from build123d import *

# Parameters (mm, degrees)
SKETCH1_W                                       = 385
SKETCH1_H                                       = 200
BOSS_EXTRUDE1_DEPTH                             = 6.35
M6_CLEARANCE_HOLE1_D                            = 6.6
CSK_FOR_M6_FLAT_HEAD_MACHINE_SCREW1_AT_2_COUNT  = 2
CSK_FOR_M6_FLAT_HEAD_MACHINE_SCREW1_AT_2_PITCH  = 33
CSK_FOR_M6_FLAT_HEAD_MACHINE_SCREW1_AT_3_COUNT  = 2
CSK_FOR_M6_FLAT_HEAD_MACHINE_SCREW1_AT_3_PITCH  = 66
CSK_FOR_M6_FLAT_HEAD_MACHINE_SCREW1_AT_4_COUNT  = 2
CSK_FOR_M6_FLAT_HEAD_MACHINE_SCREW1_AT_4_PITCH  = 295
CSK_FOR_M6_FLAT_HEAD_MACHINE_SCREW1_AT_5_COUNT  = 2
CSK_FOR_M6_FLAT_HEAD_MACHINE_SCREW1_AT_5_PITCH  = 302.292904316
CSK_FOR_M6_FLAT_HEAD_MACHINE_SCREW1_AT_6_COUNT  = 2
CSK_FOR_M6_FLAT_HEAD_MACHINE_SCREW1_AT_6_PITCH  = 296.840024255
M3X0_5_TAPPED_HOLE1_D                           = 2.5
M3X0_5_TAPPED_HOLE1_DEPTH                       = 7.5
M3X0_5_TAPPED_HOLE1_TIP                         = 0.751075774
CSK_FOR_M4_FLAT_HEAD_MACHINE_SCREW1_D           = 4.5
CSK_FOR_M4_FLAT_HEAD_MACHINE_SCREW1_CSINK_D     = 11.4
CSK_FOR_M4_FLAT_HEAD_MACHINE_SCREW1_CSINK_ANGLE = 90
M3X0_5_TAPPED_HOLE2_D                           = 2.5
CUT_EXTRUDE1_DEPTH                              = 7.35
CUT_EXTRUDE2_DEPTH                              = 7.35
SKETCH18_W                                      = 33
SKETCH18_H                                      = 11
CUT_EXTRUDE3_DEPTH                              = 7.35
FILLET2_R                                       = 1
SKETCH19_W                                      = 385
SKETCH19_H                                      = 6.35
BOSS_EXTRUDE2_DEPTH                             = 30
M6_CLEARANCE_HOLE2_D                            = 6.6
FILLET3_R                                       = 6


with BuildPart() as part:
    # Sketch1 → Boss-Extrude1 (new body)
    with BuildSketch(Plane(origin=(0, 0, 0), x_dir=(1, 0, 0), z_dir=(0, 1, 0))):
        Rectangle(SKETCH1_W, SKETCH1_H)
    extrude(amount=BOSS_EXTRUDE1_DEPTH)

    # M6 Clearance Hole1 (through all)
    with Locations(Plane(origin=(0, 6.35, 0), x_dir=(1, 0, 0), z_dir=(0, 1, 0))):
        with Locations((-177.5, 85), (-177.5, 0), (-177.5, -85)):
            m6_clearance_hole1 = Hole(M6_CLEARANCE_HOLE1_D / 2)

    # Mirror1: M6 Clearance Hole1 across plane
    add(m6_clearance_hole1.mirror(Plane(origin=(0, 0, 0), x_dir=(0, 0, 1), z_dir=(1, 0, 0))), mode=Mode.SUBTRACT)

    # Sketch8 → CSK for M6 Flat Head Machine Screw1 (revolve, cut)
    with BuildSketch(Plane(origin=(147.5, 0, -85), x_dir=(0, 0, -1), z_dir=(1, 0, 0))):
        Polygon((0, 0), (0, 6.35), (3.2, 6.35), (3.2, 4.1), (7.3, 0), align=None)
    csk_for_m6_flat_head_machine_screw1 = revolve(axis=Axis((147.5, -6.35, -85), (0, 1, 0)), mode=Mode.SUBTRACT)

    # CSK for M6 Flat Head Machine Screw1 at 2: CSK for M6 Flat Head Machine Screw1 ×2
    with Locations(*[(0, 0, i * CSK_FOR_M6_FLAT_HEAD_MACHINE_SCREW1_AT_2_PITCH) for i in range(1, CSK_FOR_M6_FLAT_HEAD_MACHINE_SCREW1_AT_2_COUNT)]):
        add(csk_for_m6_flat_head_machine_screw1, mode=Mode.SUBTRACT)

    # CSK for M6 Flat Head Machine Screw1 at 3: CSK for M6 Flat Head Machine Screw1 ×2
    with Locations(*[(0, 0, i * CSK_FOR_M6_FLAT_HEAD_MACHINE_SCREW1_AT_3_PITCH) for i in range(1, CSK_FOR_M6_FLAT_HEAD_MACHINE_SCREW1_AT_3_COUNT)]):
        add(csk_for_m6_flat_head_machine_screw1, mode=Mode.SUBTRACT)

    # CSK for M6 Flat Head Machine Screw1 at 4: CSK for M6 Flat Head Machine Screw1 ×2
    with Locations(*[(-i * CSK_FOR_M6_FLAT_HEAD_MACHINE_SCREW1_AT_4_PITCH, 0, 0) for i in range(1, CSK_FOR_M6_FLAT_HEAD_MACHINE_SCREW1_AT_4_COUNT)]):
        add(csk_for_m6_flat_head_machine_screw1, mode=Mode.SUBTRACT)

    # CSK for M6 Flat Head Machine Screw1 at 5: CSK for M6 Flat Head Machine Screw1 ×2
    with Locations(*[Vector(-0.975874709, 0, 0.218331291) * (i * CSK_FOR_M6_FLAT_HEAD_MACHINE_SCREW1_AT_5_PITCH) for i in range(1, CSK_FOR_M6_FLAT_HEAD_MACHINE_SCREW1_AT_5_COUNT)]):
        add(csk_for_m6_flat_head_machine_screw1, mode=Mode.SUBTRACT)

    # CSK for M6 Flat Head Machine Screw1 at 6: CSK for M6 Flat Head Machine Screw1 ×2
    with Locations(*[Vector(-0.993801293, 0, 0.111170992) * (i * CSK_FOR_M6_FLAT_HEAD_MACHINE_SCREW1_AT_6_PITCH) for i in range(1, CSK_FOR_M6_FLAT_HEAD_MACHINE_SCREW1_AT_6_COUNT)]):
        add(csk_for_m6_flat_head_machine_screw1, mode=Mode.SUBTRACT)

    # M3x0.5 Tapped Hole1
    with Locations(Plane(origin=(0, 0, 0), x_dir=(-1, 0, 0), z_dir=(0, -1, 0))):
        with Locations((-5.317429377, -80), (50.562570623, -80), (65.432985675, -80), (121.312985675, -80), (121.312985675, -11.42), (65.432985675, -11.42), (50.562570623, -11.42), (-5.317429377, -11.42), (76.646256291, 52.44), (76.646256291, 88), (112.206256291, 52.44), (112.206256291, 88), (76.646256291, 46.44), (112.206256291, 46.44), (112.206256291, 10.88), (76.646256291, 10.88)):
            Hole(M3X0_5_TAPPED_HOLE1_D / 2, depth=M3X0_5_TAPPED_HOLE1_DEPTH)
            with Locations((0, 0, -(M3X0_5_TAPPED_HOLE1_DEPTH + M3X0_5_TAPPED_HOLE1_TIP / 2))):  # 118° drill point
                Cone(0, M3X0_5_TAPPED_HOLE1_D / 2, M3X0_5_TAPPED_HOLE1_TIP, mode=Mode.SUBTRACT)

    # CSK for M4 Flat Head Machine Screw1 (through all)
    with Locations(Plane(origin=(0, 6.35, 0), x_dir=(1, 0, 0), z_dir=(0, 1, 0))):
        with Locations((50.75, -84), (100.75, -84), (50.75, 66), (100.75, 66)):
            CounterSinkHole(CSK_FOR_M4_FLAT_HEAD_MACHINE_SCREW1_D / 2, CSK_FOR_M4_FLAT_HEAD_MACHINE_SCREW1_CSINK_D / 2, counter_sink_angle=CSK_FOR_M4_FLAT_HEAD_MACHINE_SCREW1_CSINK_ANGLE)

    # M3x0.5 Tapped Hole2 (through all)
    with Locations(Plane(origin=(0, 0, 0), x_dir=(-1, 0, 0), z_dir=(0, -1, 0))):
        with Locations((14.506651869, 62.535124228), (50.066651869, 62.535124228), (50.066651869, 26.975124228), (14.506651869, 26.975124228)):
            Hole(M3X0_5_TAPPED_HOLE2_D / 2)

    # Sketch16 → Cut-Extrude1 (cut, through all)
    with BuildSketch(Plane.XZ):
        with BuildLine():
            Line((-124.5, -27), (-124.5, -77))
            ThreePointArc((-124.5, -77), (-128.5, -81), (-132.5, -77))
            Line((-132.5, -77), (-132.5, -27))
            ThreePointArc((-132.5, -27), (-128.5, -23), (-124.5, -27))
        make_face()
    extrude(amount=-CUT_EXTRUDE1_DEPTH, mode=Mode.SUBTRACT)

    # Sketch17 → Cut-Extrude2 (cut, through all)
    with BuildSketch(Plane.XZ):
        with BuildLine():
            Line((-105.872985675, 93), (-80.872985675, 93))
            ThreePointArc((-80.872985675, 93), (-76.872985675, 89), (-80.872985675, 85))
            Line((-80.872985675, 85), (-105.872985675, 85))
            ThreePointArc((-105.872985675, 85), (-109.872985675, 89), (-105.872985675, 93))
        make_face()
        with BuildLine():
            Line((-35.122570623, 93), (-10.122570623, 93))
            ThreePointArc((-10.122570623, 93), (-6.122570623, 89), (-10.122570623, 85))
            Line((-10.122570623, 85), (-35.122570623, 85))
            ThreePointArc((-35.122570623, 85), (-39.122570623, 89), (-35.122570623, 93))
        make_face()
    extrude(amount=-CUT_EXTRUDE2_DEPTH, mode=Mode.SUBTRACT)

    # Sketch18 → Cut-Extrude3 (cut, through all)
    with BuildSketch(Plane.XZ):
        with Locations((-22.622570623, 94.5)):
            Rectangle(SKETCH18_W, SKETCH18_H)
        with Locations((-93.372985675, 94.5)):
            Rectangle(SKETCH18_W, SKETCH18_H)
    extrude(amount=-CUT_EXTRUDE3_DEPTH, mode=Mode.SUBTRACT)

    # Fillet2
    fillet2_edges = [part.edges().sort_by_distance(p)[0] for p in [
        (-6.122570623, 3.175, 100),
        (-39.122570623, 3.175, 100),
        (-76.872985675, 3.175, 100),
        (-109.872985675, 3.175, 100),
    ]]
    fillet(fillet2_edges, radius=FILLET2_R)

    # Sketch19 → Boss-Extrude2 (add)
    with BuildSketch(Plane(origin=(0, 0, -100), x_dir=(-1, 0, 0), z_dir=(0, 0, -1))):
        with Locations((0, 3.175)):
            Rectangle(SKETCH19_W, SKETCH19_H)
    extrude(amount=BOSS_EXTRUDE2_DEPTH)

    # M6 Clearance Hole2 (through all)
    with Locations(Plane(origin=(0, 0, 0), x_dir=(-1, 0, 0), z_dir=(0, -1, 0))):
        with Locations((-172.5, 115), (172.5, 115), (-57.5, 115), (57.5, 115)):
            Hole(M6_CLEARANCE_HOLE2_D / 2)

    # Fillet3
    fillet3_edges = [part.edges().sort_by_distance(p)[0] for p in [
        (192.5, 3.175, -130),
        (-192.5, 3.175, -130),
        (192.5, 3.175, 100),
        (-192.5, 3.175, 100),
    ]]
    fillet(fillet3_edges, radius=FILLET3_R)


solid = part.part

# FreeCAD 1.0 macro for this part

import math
import FreeCAD as App
import Part
import Sketcher
from FreeCAD import Vector
Q = App.Units.Quantity


def edges_at(feature, points):
    """Names of the edges that pass closest to the given points."""
    edges = feature.Shape.Edges
    near = lambda p: min(range(len(edges)), key=lambda i: edges[i].distToShape(Part.Vertex(*p))[0])
    return sorted({f"Edge{near(p) + 1}" for p in points})


def add_polygon(sketch, points):
    """Adds a closed chain of lines whose ends are joined by coincident constraints."""
    first, n = sketch.GeometryCount, len(points)
    for a, b in zip(points, points[1:] + points[:1]):
        sketch.addGeometry(Part.LineSegment(App.Vector(*a, 0), App.Vector(*b, 0)), False)
    for i in range(n):
        sketch.addConstraint(Sketcher.Constraint("Coincident", first + i, 2, first + (i + 1) % n, 1))

doc = App.newDocument("Part")
params = doc.addObject("Spreadsheet::Sheet", "Params")
for row, (alias, value) in enumerate([
    ("sketch1_width", "385 mm"),
    ("sketch1_height", "200 mm"),
    ("pad1_length", "6.35 mm"),
    ("sketch2_diameter", "6.6 mm"),
    ("hole_diameter", "6.6 mm"),
    ("sketch3_height", "7.3 mm"),
    ("sketch3_height2", "3.2 mm"),
    ("sketch3_width", "6.35 mm"),
    ("groove_angle", "360 deg"),
    ("linearpattern_pitch", "33 mm"),
    ("linearpattern2_pitch", "66 mm"),
    ("linearpattern3_pitch", "295 mm"),
    ("linearpattern4_pitch", "302.292904 mm"),
    ("linearpattern5_pitch", "296.840024 mm"),
    ("sketch4_diameter", "2.5 mm"),
    ("hole2_diameter", "2.5 mm"),
    ("hole2_depth", "7.5 mm"),
    ("sketch5_diameter", "4.5 mm"),
    ("hole3_diameter", "4.5 mm"),
    ("hole3_csink_diameter", "11.4 mm"),
    ("sketch6_diameter", "2.5 mm"),
    ("hole4_diameter", "2.5 mm"),
    ("sketch7_radius", "4 mm"),
    ("sketch7_height", "50 mm"),
    ("sketch8_radius", "4 mm"),
    ("sketch8_width", "25 mm"),
    ("sketch9_width", "33 mm"),
    ("sketch9_height", "11 mm"),
    ("fillet_radius", "1 mm"),
    ("sketch10_width", "385 mm"),
    ("sketch10_height", "6.35 mm"),
    ("pad2_length", "30 mm"),
    ("sketch11_diameter", "6.6 mm"),
    ("hole5_diameter", "6.6 mm"),
    ("fillet2_radius", "6 mm"),
], start=1):
    params.set(f"A{row}", alias)
    params.set(f"B{row}", "=" + value)
    params.setAlias(f"B{row}", alias)

body = doc.addObject("PartDesign::Body", "Body")

sketch1 = body.newObject("Sketcher::SketchObject", "Sketch")
sketch1.AttachmentSupport = (doc.getObject("XZ_Plane"), [""])
sketch1.MapMode = "FlatFace"
add_polygon(sketch1, [(-192.5, -100), (-192.5, 100), (192.5, 100), (192.5, -100)])
sketch1.addConstraint([
    Sketcher.Constraint("Vertical", 0),
    Sketcher.Constraint("Horizontal", 1),
    Sketcher.Constraint("Vertical", 2),
    Sketcher.Constraint("Horizontal", 3),
    Sketcher.Constraint("Symmetric", 0, 2, 2, 2, -1, 1),
    Sketcher.Constraint("DistanceX", 1, 1, 1, 2, 385.0),
    Sketcher.Constraint("DistanceY", 0, 1, 0, 2, 200.0),
])
sketch1.setExpression("Constraints[9]", "Params.sketch1_width")
sketch1.setExpression("Constraints[10]", "Params.sketch1_height")
pad1 = body.newObject("PartDesign::Pad", "Pad")
pad1.Profile = sketch1
pad1.setExpression("Length", "Params.pad1_length")
pad1.Reversed = True

sketch2 = body.newObject("Sketcher::SketchObject", "Sketch001")
sketch2.AttachmentSupport = (doc.getObject("XZ_Plane"), [""])
sketch2.MapMode = "FlatFace"
sketch2.AttachmentOffset = App.Placement(Vector(0, 0, -6.35), App.Rotation())
sketch2.addGeometry([
    Part.Circle(Vector(-177.5, -85, 0), Vector(0, 0, 1), 3.3),
    Part.Circle(Vector(-177.5, 0, 0), Vector(0, 0, 1), 3.3),
    Part.Circle(Vector(-177.5, 85, 0), Vector(0, 0, 1), 3.3),
], False)
sketch2.addConstraint([
    Sketcher.Constraint("Equal", 0, 1),
    Sketcher.Constraint("Equal", 1, 2),
    Sketcher.Constraint("Symmetric", 0, 3, 2, 3, -1),
    Sketcher.Constraint("PointOnObject", 1, 3, -1),
    Sketcher.Constraint("Vertical", 0, 3, 1, 3),
    Sketcher.Constraint("Diameter", 0, 6.6),
    Sketcher.Constraint("DistanceY", 0, 3, -1, 1, 85.0),
    Sketcher.Constraint("DistanceX", 0, 3, -1, 1, 177.5),
])
sketch2.setExpression("Constraints[5]", "Params.sketch2_diameter")
doc.recompute()
hole = body.newObject("PartDesign::Hole", "Hole")
hole.Profile = sketch2
hole.ThreadType = "None"
hole.setExpression("Diameter", "Params.hole_diameter")
hole.DepthType = "ThroughAll"
hole.Reversed = True
doc.recompute()

mirrored = body.newObject("PartDesign::Mirrored", "Mirrored")
mirrored.Originals = [hole]
mirrored.MirrorPlane = (doc.getObject("YZ_Plane"), [""])
body.Tip = mirrored

sketch3 = body.newObject("Sketcher::SketchObject", "Sketch002")
sketch3.AttachmentSupport = (doc.getObject("YZ_Plane"), [""])
sketch3.MapMode = "FlatFace"
sketch3.AttachmentOffset = App.Placement(Vector(0, 0, 147.5), App.Rotation())
add_polygon(sketch3, [(6.35, -85), (0, -85), (0, -92.3), (4.1, -88.2), (6.35, -88.2)])
sketch3.addGeometry(Part.LineSegment(Vector(0, -85, 0), Vector(6.35, -85, 0)), True)
sketch3.addConstraint([
    Sketcher.Constraint("Horizontal", 0),
    Sketcher.Constraint("Vertical", 1),
    Sketcher.Constraint("Horizontal", 3),
    Sketcher.Constraint("Vertical", 4),
    Sketcher.Constraint("Horizontal", 5),
    Sketcher.Constraint("Coincident", 5, 1, 0, 2),
    Sketcher.Constraint("PointOnObject", 0, 2, -2),
    Sketcher.Constraint("Vertical", 3, 2, 5, 2),
    Sketcher.Constraint("Angle", 2, Q("45 deg")),
    Sketcher.Constraint("DistanceY", 1, 2, 1, 1, 7.3),
    Sketcher.Constraint("DistanceY", 4, 1, 4, 2, 3.2),
    Sketcher.Constraint("DistanceY", 0, 2, -1, 1, 85.0),
    Sketcher.Constraint("DistanceX", 0, 2, 0, 1, 6.35),
])
sketch3.setExpression("Constraints[14]", "Params.sketch3_height")
sketch3.setExpression("Constraints[15]", "Params.sketch3_height2")
sketch3.setExpression("Constraints[17]", "Params.sketch3_width")
groove = body.newObject("PartDesign::Groove", "Groove")
groove.Profile = sketch3
groove.ReferenceAxis = (sketch3, ["Axis0"])
groove.setExpression("Angle", "Params.groove_angle")
doc.recompute()

linearpattern = body.newObject("PartDesign::LinearPattern", "LinearPattern")
linearpattern.Originals = [groove]
linearpattern.Direction = (doc.getObject("Z_Axis"), [""])
linearpattern.Mode = "offset"
linearpattern.setExpression("Offset", "Params.linearpattern_pitch")
linearpattern.Occurrences = 2
body.Tip = linearpattern
doc.recompute()

linearpattern2 = body.newObject("PartDesign::LinearPattern", "LinearPattern001")
linearpattern2.Originals = [groove]
linearpattern2.Direction = (doc.getObject("Z_Axis"), [""])
linearpattern2.Mode = "offset"
linearpattern2.setExpression("Offset", "Params.linearpattern2_pitch")
linearpattern2.Occurrences = 2
body.Tip = linearpattern2
doc.recompute()

linearpattern3 = body.newObject("PartDesign::LinearPattern", "LinearPattern002")
linearpattern3.Originals = [groove]
linearpattern3.Direction = (doc.getObject("X_Axis"), [""])
linearpattern3.Mode = "offset"
linearpattern3.setExpression("Offset", "Params.linearpattern3_pitch")
linearpattern3.Occurrences = 2
linearpattern3.Reversed = True
body.Tip = linearpattern3
doc.recompute()

datumline = body.newObject("PartDesign::Line", "DatumLine")
datumline.Placement = App.Placement(Vector(0, 0, 0), App.Rotation(Vector(0, 0, 1), Vector(-0.975874709, 0, 0.218331291)))
linearpattern4 = body.newObject("PartDesign::LinearPattern", "LinearPattern003")
linearpattern4.Originals = [groove]
linearpattern4.Direction = (datumline, [""])
linearpattern4.Mode = "offset"
linearpattern4.setExpression("Offset", "Params.linearpattern4_pitch")
linearpattern4.Occurrences = 2
body.Tip = linearpattern4
doc.recompute()

datumline2 = body.newObject("PartDesign::Line", "DatumLine001")
datumline2.Placement = App.Placement(Vector(0, 0, 0), App.Rotation(Vector(0, 0, 1), Vector(-0.993801293, 0, 0.111170992)))
linearpattern5 = body.newObject("PartDesign::LinearPattern", "LinearPattern004")
linearpattern5.Originals = [groove]
linearpattern5.Direction = (datumline2, [""])
linearpattern5.Mode = "offset"
linearpattern5.setExpression("Offset", "Params.linearpattern5_pitch")
linearpattern5.Occurrences = 2
body.Tip = linearpattern5

sketch4 = body.newObject("Sketcher::SketchObject", "Sketch003")
sketch4.AttachmentSupport = (doc.getObject("XZ_Plane"), [""])
sketch4.MapMode = "FlatFace"
sketch4.addGeometry([
    Part.Circle(Vector(5.317429, 80, 0), Vector(0, 0, 1), 1.25),
    Part.Circle(Vector(-50.562571, 80, 0), Vector(0, 0, 1), 1.25),
    Part.Circle(Vector(-65.432986, 80, 0), Vector(0, 0, 1), 1.25),
    Part.Circle(Vector(-121.312986, 80, 0), Vector(0, 0, 1), 1.25),
    Part.Circle(Vector(-121.312986, 11.42, 0), Vector(0, 0, 1), 1.25),
    Part.Circle(Vector(-65.432986, 11.42, 0), Vector(0, 0, 1), 1.25),
    Part.Circle(Vector(-50.562571, 11.42, 0), Vector(0, 0, 1), 1.25),
    Part.Circle(Vector(5.317429, 11.42, 0), Vector(0, 0, 1), 1.25),
    Part.Circle(Vector(-76.646256, -52.44, 0), Vector(0, 0, 1), 1.25),
    Part.Circle(Vector(-76.646256, -88, 0), Vector(0, 0, 1), 1.25),
    Part.Circle(Vector(-112.206256, -52.44, 0), Vector(0, 0, 1), 1.25),
    Part.Circle(Vector(-112.206256, -88, 0), Vector(0, 0, 1), 1.25),
    Part.Circle(Vector(-76.646256, -46.44, 0), Vector(0, 0, 1), 1.25),
    Part.Circle(Vector(-112.206256, -46.44, 0), Vector(0, 0, 1), 1.25),
    Part.Circle(Vector(-112.206256, -10.88, 0), Vector(0, 0, 1), 1.25),
    Part.Circle(Vector(-76.646256, -10.88, 0), Vector(0, 0, 1), 1.25),
], False)
sketch4.addConstraint([
    Sketcher.Constraint("Equal", 0, 1),
    Sketcher.Constraint("Equal", 1, 2),
    Sketcher.Constraint("Equal", 2, 3),
    Sketcher.Constraint("Equal", 3, 4),
    Sketcher.Constraint("Equal", 4, 5),
    Sketcher.Constraint("Equal", 5, 6),
    Sketcher.Constraint("Equal", 6, 7),
    Sketcher.Constraint("Equal", 7, 8),
    Sketcher.Constraint("Equal", 8, 9),
    Sketcher.Constraint("Equal", 9, 10),
    Sketcher.Constraint("Equal", 10, 11),
    Sketcher.Constraint("Equal", 11, 12),
    Sketcher.Constraint("Equal", 12, 13),
    Sketcher.Constraint("Equal", 13, 14),
    Sketcher.Constraint("Equal", 14, 15),
    Sketcher.Constraint("Horizontal", 0, 3, 1, 3),
    Sketcher.Constraint("Horizontal", 1, 3, 2, 3),
    Sketcher.Constraint("Horizontal", 2, 3, 3, 3),
    Sketcher.Constraint("Horizontal", 4, 3, 5, 3),
    Sketcher.Constraint("Horizontal", 5, 3, 6, 3),
    Sketcher.Constraint("Horizontal", 6, 3, 7, 3),
    Sketcher.Constraint("Horizontal", 8, 3, 10, 3),
    Sketcher.Constraint("Horizontal", 9, 3, 11, 3),
    Sketcher.Constraint("Horizontal", 12, 3, 13, 3),
    Sketcher.Constraint("Horizontal", 14, 3, 15, 3),
    Sketcher.Constraint("Vertical", 3, 3, 4, 3),
    Sketcher.Constraint("Vertical", 2, 3, 5, 3),
    Sketcher.Constraint("Vertical", 1, 3, 6, 3),
    Sketcher.Constraint("Vertical", 0, 3, 7, 3),
    Sketcher.Constraint("Vertical", 8, 3, 9, 3),
    Sketcher.Constraint("Vertical", 10, 3, 11, 3),
    Sketcher.Constraint("Vertical", 9, 3, 12, 3),
    Sketcher.Constraint("Vertical", 11, 3, 13, 3),
    Sketcher.Constraint("Vertical", 13, 3, 14, 3),
    Sketcher.Constraint("Vertical", 12, 3, 15, 3),
    Sketcher.Constraint("Diameter", 0, 2.5),
    Sketcher.Constraint("DistanceY", -1, 1, 0, 3, 80.0),
    Sketcher.Constraint("DistanceY", 9, 3, -1, 1, 88.0),
    Sketcher.Constraint("DistanceY", 8, 3, 12, 3, 6.0),
    Sketcher.Constraint("DistanceY", 14, 3, 4, 3, 22.3),
    Sketcher.Constraint("DistanceY", -1, 1, 4, 3, 11.42),
    Sketcher.Constraint("DistanceY", 8, 3, -1, 1, 52.44),
    Sketcher.Constraint("DistanceX", 1, 3, 0, 3, 55.88),
    Sketcher.Constraint("DistanceX", 3, 3, 2, 3, 55.88),
    Sketcher.Constraint("DistanceX", 10, 3, 8, 3, 35.56),
    Sketcher.Constraint("DistanceX", -1, 1, 0, 3, 5.317429),
    Sketcher.Constraint("DistanceX", 8, 3, 5, 3, 11.213271),
    Sketcher.Constraint("DistanceX", 2, 3, -1, 1, 65.432986),
])
sketch4.setExpression("Constraints[35]", "Params.sketch4_diameter")
doc.recompute()
hole2 = body.newObject("PartDesign::Hole", "Hole001")
hole2.Profile = sketch4
hole2.ThreadType = "None"
hole2.setExpression("Diameter", "Params.hole2_diameter")
hole2.DepthType = "Dimension"
hole2.setExpression("Depth", "Params.hole2_depth")
hole2.DrillPoint = "Angled"
hole2.DrillPointAngle = 118

sketch5 = body.newObject("Sketcher::SketchObject", "Sketch004")
sketch5.AttachmentSupport = (doc.getObject("XZ_Plane"), [""])
sketch5.MapMode = "FlatFace"
sketch5.AttachmentOffset = App.Placement(Vector(0, 0, -6.35), App.Rotation())
sketch5.addGeometry([
    Part.Circle(Vector(50.75, 84, 0), Vector(0, 0, 1), 2.25),
    Part.Circle(Vector(100.75, 84, 0), Vector(0, 0, 1), 2.25),
    Part.Circle(Vector(50.75, -66, 0), Vector(0, 0, 1), 2.25),
    Part.Circle(Vector(100.75, -66, 0), Vector(0, 0, 1), 2.25),
], False)
sketch5.addConstraint([
    Sketcher.Constraint("Equal", 0, 1),
    Sketcher.Constraint("Equal", 1, 2),
    Sketcher.Constraint("Equal", 2, 3),
    Sketcher.Constraint("Horizontal", 0, 3, 1, 3),
    Sketcher.Constraint("Horizontal", 2, 3, 3, 3),
    Sketcher.Constraint("Vertical", 0, 3, 2, 3),
    Sketcher.Constraint("Vertical", 1, 3, 3, 3),
    Sketcher.Constraint("Diameter", 0, 4.5),
    Sketcher.Constraint("DistanceY", -1, 1, 0, 3, 84.0),
    Sketcher.Constraint("DistanceY", 2, 3, -1, 1, 66.0),
    Sketcher.Constraint("DistanceX", 0, 3, 1, 3, 50.0),
    Sketcher.Constraint("DistanceX", -1, 1, 0, 3, 50.75),
])
sketch5.setExpression("Constraints[7]", "Params.sketch5_diameter")
doc.recompute()
hole3 = body.newObject("PartDesign::Hole", "Hole002")
hole3.Profile = sketch5
hole3.ThreadType = "None"
hole3.setExpression("Diameter", "Params.hole3_diameter")
hole3.DepthType = "ThroughAll"
hole3.HoleCutType = "Countersink"
hole3.setExpression("HoleCutDiameter", "Params.hole3_csink_diameter")
hole3.HoleCutCountersinkAngle = 90
hole3.Reversed = True

sketch6 = body.newObject("Sketcher::SketchObject", "Sketch005")
sketch6.AttachmentSupport = (doc.getObject("XZ_Plane"), [""])
sketch6.MapMode = "FlatFace"
sketch6.addGeometry([
    Part.Circle(Vector(-14.506652, -62.535124, 0), Vector(0, 0, 1), 1.25),
    Part.Circle(Vector(-50.066652, -62.535124, 0), Vector(0, 0, 1), 1.25),
    Part.Circle(Vector(-50.066652, -26.975124, 0), Vector(0, 0, 1), 1.25),
    Part.Circle(Vector(-14.506652, -26.975124, 0), Vector(0, 0, 1), 1.25),
], False)
sketch6.addConstraint([
    Sketcher.Constraint("Equal", 0, 1),
    Sketcher.Constraint("Equal", 1, 2),
    Sketcher.Constraint("Equal", 2, 3),
    Sketcher.Constraint("Horizontal", 0, 3, 1, 3),
    Sketcher.Constraint("Horizontal", 2, 3, 3, 3),
    Sketcher.Constraint("Vertical", 1, 3, 2, 3),
    Sketcher.Constraint("Vertical", 0, 3, 3, 3),
    Sketcher.Constraint("Diameter", 0, 2.5),
    Sketcher.Constraint("DistanceX", 1, 3, 0, 3, 35.56),
    Sketcher.Constraint("DistanceY", 1, 3, 2, 3, 35.56),
    Sketcher.Constraint("DistanceX", 0, 3, -1, 1, 14.506652),
    Sketcher.Constraint("DistanceY", 0, 3, -1, 1, 62.535124),
])
sketch6.setExpression("Constraints[7]", "Params.sketch6_diameter")
doc.recompute()
hole4 = body.newObject("PartDesign::Hole", "Hole003")
hole4.Profile = sketch6
hole4.ThreadType = "None"
hole4.setExpression("Diameter", "Params.hole4_diameter")
hole4.DepthType = "ThroughAll"

sketch7 = body.newObject("Sketcher::SketchObject", "Sketch006")
sketch7.AttachmentSupport = (doc.getObject("XZ_Plane"), [""])
sketch7.MapMode = "FlatFace"
sketch7.addGeometry([
    Part.LineSegment(Vector(-124.5, -77, 0), Vector(-124.5, -27, 0)),
    Part.ArcOfCircle(Part.Circle(Vector(-128.5, -27, 0), Vector(0, 0, 1), 4), math.radians(0), math.radians(180)),
    Part.LineSegment(Vector(-132.5, -27, 0), Vector(-132.5, -77, 0)),
    Part.ArcOfCircle(Part.Circle(Vector(-128.5, -77, 0), Vector(0, 0, 1), 4), math.radians(180), math.radians(360)),
], False)
sketch7.addConstraint([
    Sketcher.Constraint("Tangent", 0, 2, 1, 1),
    Sketcher.Constraint("Tangent", 1, 2, 2, 1),
    Sketcher.Constraint("Tangent", 2, 2, 3, 1),
    Sketcher.Constraint("Tangent", 3, 2, 0, 1),
    Sketcher.Constraint("Vertical", 0),
    Sketcher.Constraint("Vertical", 2),
    Sketcher.Constraint("Radius", 1, 4.0),
    Sketcher.Constraint("DistanceY", 0, 1, 0, 2, 50.0),
    Sketcher.Constraint("DistanceY", 1, 3, -1, 1, 27.0),
    Sketcher.Constraint("DistanceX", 1, 3, -1, 1, 128.5),
])
sketch7.setExpression("Constraints[6]", "Params.sketch7_radius")
sketch7.setExpression("Constraints[7]", "Params.sketch7_height")
pocket1 = body.newObject("PartDesign::Pocket", "Pocket")
pocket1.Profile = sketch7
pocket1.Type = "ThroughAll"

sketch8 = body.newObject("Sketcher::SketchObject", "Sketch007")
sketch8.AttachmentSupport = (doc.getObject("XZ_Plane"), [""])
sketch8.MapMode = "FlatFace"
sketch8.addGeometry([
    Part.LineSegment(Vector(-80.872986, 93, 0), Vector(-105.872986, 93, 0)),
    Part.ArcOfCircle(Part.Circle(Vector(-105.872986, 89, 0), Vector(0, 0, 1), 4), math.radians(90), math.radians(270)),
    Part.LineSegment(Vector(-105.872986, 85, 0), Vector(-80.872986, 85, 0)),
    Part.ArcOfCircle(Part.Circle(Vector(-80.872986, 89, 0), Vector(0, 0, 1), 4), math.radians(-90), math.radians(90)),
    Part.LineSegment(Vector(-10.122571, 93, 0), Vector(-35.122571, 93, 0)),
    Part.ArcOfCircle(Part.Circle(Vector(-35.122571, 89, 0), Vector(0, 0, 1), 4), math.radians(90), math.radians(270)),
    Part.LineSegment(Vector(-35.122571, 85, 0), Vector(-10.122571, 85, 0)),
    Part.ArcOfCircle(Part.Circle(Vector(-10.122571, 89, 0), Vector(0, 0, 1), 4), math.radians(-90), math.radians(90)),
], False)
sketch8.addConstraint([
    Sketcher.Constraint("Tangent", 0, 2, 1, 1),
    Sketcher.Constraint("Tangent", 1, 2, 2, 1),
    Sketcher.Constraint("Tangent", 2, 2, 3, 1),
    Sketcher.Constraint("Tangent", 3, 2, 0, 1),
    Sketcher.Constraint("Tangent", 4, 2, 5, 1),
    Sketcher.Constraint("Tangent", 5, 2, 6, 1),
    Sketcher.Constraint("Tangent", 6, 2, 7, 1),
    Sketcher.Constraint("Tangent", 7, 2, 4, 1),
    Sketcher.Constraint("Horizontal", 0),
    Sketcher.Constraint("Horizontal", 2),
    Sketcher.Constraint("Horizontal", 4),
    Sketcher.Constraint("Horizontal", 6),
    Sketcher.Constraint("Equal", 3, 5),
    Sketcher.Constraint("Horizontal", 3, 3, 5, 3),
    Sketcher.Constraint("Equal", 2, 4),
    Sketcher.Constraint("Radius", 1, 4.0),
    Sketcher.Constraint("DistanceX", 0, 2, 0, 1, 25.0),
    Sketcher.Constraint("DistanceY", -1, 1, 1, 3, 89.0),
    Sketcher.Constraint("DistanceX", 5, 3, -1, 1, 35.122571),
    Sketcher.Constraint("DistanceX", 1, 3, -1, 1, 105.872986),
])
sketch8.setExpression("Constraints[15]", "Params.sketch8_radius")
sketch8.setExpression("Constraints[16]", "Params.sketch8_width")
pocket2 = body.newObject("PartDesign::Pocket", "Pocket001")
pocket2.Profile = sketch8
pocket2.Type = "ThroughAll"

sketch9 = body.newObject("Sketcher::SketchObject", "Sketch008")
sketch9.AttachmentSupport = (doc.getObject("XZ_Plane"), [""])
sketch9.MapMode = "FlatFace"
add_polygon(sketch9, [(-39.122571, 100), (-39.122571, 89), (-6.122571, 89), (-6.122571, 100)])
add_polygon(sketch9, [(-109.872986, 100), (-109.872986, 89), (-76.872986, 89), (-76.872986, 100)])
sketch9.addConstraint([
    Sketcher.Constraint("Vertical", 0),
    Sketcher.Constraint("Horizontal", 1),
    Sketcher.Constraint("Vertical", 2),
    Sketcher.Constraint("Horizontal", 3),
    Sketcher.Constraint("Vertical", 4),
    Sketcher.Constraint("Horizontal", 5),
    Sketcher.Constraint("Vertical", 6),
    Sketcher.Constraint("Horizontal", 7),
    Sketcher.Constraint("Horizontal", 1, 2, 4, 2),
    Sketcher.Constraint("Horizontal", 3, 2, 6, 2),
    Sketcher.Constraint("Equal", 3, 5),
    Sketcher.Constraint("DistanceX", 1, 1, 1, 2, 33.0),
    Sketcher.Constraint("DistanceY", 0, 2, 0, 1, 11.0),
    Sketcher.Constraint("DistanceY", -1, 1, 0, 2, 89.0),
    Sketcher.Constraint("DistanceX", 0, 2, -1, 1, 39.122571),
    Sketcher.Constraint("DistanceX", 4, 2, -1, 1, 109.872986),
])
sketch9.setExpression("Constraints[19]", "Params.sketch9_width")
sketch9.setExpression("Constraints[20]", "Params.sketch9_height")
pocket3 = body.newObject("PartDesign::Pocket", "Pocket002")
pocket3.Profile = sketch9
pocket3.Type = "ThroughAll"
doc.recompute()

fillet = body.newObject("PartDesign::Fillet", "Fillet")
fillet.Base = (pocket3, edges_at(pocket3, [
    (-6.123, 3.175, 100),
    (-39.123, 3.175, 100),
    (-76.873, 3.175, 100),
    (-109.873, 3.175, 100),
]))
fillet.setExpression("Radius", "Params.fillet_radius")

sketch10 = body.newObject("Sketcher::SketchObject", "Sketch009")
sketch10.AttachmentSupport = (doc.getObject("XY_Plane"), [""])
sketch10.MapMode = "FlatFace"
sketch10.AttachmentOffset = App.Placement(Vector(0, 0, -100), App.Rotation())
add_polygon(sketch10, [(192.5, 6.35), (192.5, 0), (-192.5, 0), (-192.5, 6.35)])
sketch10.addConstraint([
    Sketcher.Constraint("Vertical", 0),
    Sketcher.Constraint("Horizontal", 1),
    Sketcher.Constraint("Vertical", 2),
    Sketcher.Constraint("Horizontal", 3),
    Sketcher.Constraint("Symmetric", 0, 2, 1, 2, -1, 1),
    Sketcher.Constraint("DistanceX", 1, 2, 1, 1, 385.0),
    Sketcher.Constraint("DistanceY", 0, 2, 0, 1, 6.35),
])
sketch10.setExpression("Constraints[9]", "Params.sketch10_width")
sketch10.setExpression("Constraints[10]", "Params.sketch10_height")
pad2 = body.newObject("PartDesign::Pad", "Pad001")
pad2.Profile = sketch10
pad2.setExpression("Length", "Params.pad2_length")
pad2.Reversed = True

sketch11 = body.newObject("Sketcher::SketchObject", "Sketch010")
sketch11.AttachmentSupport = (doc.getObject("XZ_Plane"), [""])
sketch11.MapMode = "FlatFace"
sketch11.addGeometry([
    Part.Circle(Vector(172.5, -115, 0), Vector(0, 0, 1), 3.3),
    Part.Circle(Vector(-172.5, -115, 0), Vector(0, 0, 1), 3.3),
    Part.Circle(Vector(57.5, -115, 0), Vector(0, 0, 1), 3.3),
    Part.Circle(Vector(-57.5, -115, 0), Vector(0, 0, 1), 3.3),
], False)
sketch11.addConstraint([
    Sketcher.Constraint("Equal", 0, 1),
    Sketcher.Constraint("Equal", 1, 2),
    Sketcher.Constraint("Equal", 2, 3),
    Sketcher.Constraint("Symmetric", 0, 3, 1, 3, -2),
    Sketcher.Constraint("Symmetric", 2, 3, 3, 3, -2),
    Sketcher.Constraint("Horizontal", 1, 3, 2, 3),
    Sketcher.Constraint("Diameter", 0, 6.6),
    Sketcher.Constraint("DistanceY", 0, 3, -1, 1, 115.0),
    Sketcher.Constraint("DistanceX", 1, 3, 0, 3, 345.0),
    Sketcher.Constraint("DistanceX", 2, 3, 0, 3, 115.0),
])
sketch11.setExpression("Constraints[6]", "Params.sketch11_diameter")
doc.recompute()
hole5 = body.newObject("PartDesign::Hole", "Hole004")
hole5.Profile = sketch11
hole5.ThreadType = "None"
hole5.setExpression("Diameter", "Params.hole5_diameter")
hole5.DepthType = "ThroughAll"
doc.recompute()

fillet2 = body.newObject("PartDesign::Fillet", "Fillet001")
fillet2.Base = (hole5, edges_at(hole5, [
    (192.5, 3.175, -130),
    (-192.5, 3.175, -130),
    (192.5, 3.175, 100),
    (-192.5, 3.175, 100),
]))
fillet2.setExpression("Radius", "Params.fillet2_radius")

doc.recompute()
